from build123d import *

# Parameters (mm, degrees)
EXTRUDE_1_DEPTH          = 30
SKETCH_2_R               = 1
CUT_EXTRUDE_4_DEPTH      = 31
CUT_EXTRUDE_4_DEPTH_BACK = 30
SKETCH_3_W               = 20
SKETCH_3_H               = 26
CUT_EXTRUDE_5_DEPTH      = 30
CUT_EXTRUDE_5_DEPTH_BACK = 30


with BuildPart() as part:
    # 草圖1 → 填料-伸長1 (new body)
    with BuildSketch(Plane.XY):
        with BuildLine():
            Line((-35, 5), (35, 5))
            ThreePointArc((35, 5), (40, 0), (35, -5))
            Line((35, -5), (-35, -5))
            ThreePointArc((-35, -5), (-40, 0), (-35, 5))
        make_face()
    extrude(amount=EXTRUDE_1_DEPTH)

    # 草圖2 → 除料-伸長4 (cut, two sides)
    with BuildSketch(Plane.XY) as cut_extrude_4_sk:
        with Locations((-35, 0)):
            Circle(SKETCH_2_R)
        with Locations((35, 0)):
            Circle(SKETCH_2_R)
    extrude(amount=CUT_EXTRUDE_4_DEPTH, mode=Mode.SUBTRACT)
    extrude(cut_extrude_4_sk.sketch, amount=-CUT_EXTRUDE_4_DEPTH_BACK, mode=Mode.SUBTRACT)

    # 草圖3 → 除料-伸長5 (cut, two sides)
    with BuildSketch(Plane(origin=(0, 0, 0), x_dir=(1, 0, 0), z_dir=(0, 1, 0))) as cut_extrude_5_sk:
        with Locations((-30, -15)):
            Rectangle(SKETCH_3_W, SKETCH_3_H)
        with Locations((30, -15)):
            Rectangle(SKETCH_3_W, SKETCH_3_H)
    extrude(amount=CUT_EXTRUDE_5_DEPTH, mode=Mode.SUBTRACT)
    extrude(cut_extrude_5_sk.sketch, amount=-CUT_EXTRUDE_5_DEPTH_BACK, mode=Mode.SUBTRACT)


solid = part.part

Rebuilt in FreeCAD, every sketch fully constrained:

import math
import FreeCAD as App
import Part
import Sketcher

V = App.Vector
Q = App.Units.Quantity

doc = App.newDocument("Part")
body = doc.addObject("PartDesign::Body", "Body")

# Sketch on XY plane
sketch1 = doc.addObject("Sketcher::SketchObject", "Sketch")
body.addObject(sketch1)
sketch1.AttachmentSupport = (doc.XY_Plane, [""])
sketch1.MapMode = "FlatFace"
sketch1.addGeometry([
    Part.LineSegment(V(35, 5, 0), V(-35, 5, 0)),
    Part.ArcOfCircle(Part.Circle(V(-35, 0, 0), V(0, 0, 1), 5), math.radians(90), math.radians(270)),
    Part.LineSegment(V(-35, -5, 0), V(35, -5, 0)),
    Part.ArcOfCircle(Part.Circle(V(35, 0, 0), V(0, 0, 1), 5), math.radians(-90), math.radians(90)),
], False)
sketch1.addConstraint([
    Sketcher.Constraint("Tangent", 0, 2, 1, 1),
    Sketcher.Constraint("Tangent", 1, 2, 2, 1),
    Sketcher.Constraint("Tangent", 2, 2, 3, 1),
    Sketcher.Constraint("Tangent", 3, 2, 0, 1),
    Sketcher.Constraint("Horizontal", 0),
    Sketcher.Constraint("Horizontal", 2),
    Sketcher.Constraint("Symmetric", 1, 3, 3, 3, -1, 1),
    Sketcher.Constraint("Radius", 1, Q("5 mm")),
    Sketcher.Constraint("DistanceX", 0, 2, 0, 1, Q("70 mm")),
])
pad1 = doc.addObject("PartDesign::Pad", "Pad")
body.addObject(pad1)
pad1.Profile = sketch1
pad1.Length = 30

# Sketch on XY plane
sketch2 = doc.addObject("Sketcher::SketchObject", "Sketch001")
body.addObject(sketch2)
sketch2.AttachmentSupport = (doc.XY_Plane, [""])
sketch2.MapMode = "FlatFace"
sketch2.addGeometry([
    Part.Circle(V(-35, 0, 0), V(0, 0, 1), 1),
    Part.Circle(V(35, 0, 0), V(0, 0, 1), 1),
], False)
sketch2.addConstraint([
    Sketcher.Constraint("Equal", 0, 1),
    Sketcher.Constraint("Symmetric", 0, 3, 1, 3, -1, 1),
    Sketcher.Constraint("PointOnObject", 0, 3, -1),
    Sketcher.Constraint("Diameter", 0, Q("2 mm")),
    Sketcher.Constraint("DistanceX", 0, 3, -1, 1, Q("35 mm")),
])
pocket1 = doc.addObject("PartDesign::Pocket", "Pocket")
body.addObject(pocket1)
pocket1.Profile = sketch2
pocket1.Type = "ThroughAll"
pocket1.Midplane = True

# Sketch on XZ plane
sketch3 = doc.addObject("Sketcher::SketchObject", "Sketch002")
body.addObject(sketch3)
sketch3.AttachmentSupport = (doc.XZ_Plane, [""])
sketch3.MapMode = "FlatFace"
sketch3.addGeometry([
    Part.LineSegment(V(-40, 2, 0), V(-40, 28, 0)),  # 0
    Part.LineSegment(V(-40, 28, 0), V(-20, 28, 0)),  # 1
    Part.LineSegment(V(-20, 28, 0), V(-20, 2, 0)),  # 2
    Part.LineSegment(V(-20, 2, 0), V(-40, 2, 0)),  # 3
    Part.LineSegment(V(20, 2, 0), V(20, 28, 0)),  # 4
    Part.LineSegment(V(20, 28, 0), V(40, 28, 0)),  # 5
    Part.LineSegment(V(40, 28, 0), V(40, 2, 0)),  # 6
    Part.LineSegment(V(40, 2, 0), V(20, 2, 0)),  # 7
], False)
sketch3.addConstraint([
    Sketcher.Constraint("Coincident", 0, 2, 1, 1),
    Sketcher.Constraint("Coincident", 1, 2, 2, 1),
    Sketcher.Constraint("Coincident", 2, 2, 3, 1),
    Sketcher.Constraint("Coincident", 3, 2, 0, 1),
    Sketcher.Constraint("Coincident", 4, 2, 5, 1),
    Sketcher.Constraint("Coincident", 5, 2, 6, 1),
    Sketcher.Constraint("Coincident", 6, 2, 7, 1),
    Sketcher.Constraint("Coincident", 7, 2, 4, 1),
    Sketcher.Constraint("Vertical", 0),
    Sketcher.Constraint("Horizontal", 1),
    Sketcher.Constraint("Vertical", 2),
    Sketcher.Constraint("Horizontal", 3),
    Sketcher.Constraint("Vertical", 4),
    Sketcher.Constraint("Horizontal", 5),
    Sketcher.Constraint("Vertical", 6),
    Sketcher.Constraint("Horizontal", 7),
    Sketcher.Constraint("Symmetric", 1, 2, 4, 2, -2),
    Sketcher.Constraint("Symmetric", 3, 2, 6, 2, -2),
    Sketcher.Constraint("DistanceX", 1, 1, 1, 2, Q("20 mm")),
    Sketcher.Constraint("DistanceY", 0, 1, 0, 2, Q("26 mm")),
    Sketcher.Constraint("DistanceX", 0, 2, -1, 1, Q("40 mm")),
    Sketcher.Constraint("DistanceY", -1, 1, 0, 2, Q("28 mm")),
])
pocket2 = doc.addObject("PartDesign::Pocket", "Pocket001")
body.addObject(pocket2)
pocket2.Profile = sketch3
pocket2.Type = "ThroughAll"
pocket2.Midplane = True

doc.recompute()
